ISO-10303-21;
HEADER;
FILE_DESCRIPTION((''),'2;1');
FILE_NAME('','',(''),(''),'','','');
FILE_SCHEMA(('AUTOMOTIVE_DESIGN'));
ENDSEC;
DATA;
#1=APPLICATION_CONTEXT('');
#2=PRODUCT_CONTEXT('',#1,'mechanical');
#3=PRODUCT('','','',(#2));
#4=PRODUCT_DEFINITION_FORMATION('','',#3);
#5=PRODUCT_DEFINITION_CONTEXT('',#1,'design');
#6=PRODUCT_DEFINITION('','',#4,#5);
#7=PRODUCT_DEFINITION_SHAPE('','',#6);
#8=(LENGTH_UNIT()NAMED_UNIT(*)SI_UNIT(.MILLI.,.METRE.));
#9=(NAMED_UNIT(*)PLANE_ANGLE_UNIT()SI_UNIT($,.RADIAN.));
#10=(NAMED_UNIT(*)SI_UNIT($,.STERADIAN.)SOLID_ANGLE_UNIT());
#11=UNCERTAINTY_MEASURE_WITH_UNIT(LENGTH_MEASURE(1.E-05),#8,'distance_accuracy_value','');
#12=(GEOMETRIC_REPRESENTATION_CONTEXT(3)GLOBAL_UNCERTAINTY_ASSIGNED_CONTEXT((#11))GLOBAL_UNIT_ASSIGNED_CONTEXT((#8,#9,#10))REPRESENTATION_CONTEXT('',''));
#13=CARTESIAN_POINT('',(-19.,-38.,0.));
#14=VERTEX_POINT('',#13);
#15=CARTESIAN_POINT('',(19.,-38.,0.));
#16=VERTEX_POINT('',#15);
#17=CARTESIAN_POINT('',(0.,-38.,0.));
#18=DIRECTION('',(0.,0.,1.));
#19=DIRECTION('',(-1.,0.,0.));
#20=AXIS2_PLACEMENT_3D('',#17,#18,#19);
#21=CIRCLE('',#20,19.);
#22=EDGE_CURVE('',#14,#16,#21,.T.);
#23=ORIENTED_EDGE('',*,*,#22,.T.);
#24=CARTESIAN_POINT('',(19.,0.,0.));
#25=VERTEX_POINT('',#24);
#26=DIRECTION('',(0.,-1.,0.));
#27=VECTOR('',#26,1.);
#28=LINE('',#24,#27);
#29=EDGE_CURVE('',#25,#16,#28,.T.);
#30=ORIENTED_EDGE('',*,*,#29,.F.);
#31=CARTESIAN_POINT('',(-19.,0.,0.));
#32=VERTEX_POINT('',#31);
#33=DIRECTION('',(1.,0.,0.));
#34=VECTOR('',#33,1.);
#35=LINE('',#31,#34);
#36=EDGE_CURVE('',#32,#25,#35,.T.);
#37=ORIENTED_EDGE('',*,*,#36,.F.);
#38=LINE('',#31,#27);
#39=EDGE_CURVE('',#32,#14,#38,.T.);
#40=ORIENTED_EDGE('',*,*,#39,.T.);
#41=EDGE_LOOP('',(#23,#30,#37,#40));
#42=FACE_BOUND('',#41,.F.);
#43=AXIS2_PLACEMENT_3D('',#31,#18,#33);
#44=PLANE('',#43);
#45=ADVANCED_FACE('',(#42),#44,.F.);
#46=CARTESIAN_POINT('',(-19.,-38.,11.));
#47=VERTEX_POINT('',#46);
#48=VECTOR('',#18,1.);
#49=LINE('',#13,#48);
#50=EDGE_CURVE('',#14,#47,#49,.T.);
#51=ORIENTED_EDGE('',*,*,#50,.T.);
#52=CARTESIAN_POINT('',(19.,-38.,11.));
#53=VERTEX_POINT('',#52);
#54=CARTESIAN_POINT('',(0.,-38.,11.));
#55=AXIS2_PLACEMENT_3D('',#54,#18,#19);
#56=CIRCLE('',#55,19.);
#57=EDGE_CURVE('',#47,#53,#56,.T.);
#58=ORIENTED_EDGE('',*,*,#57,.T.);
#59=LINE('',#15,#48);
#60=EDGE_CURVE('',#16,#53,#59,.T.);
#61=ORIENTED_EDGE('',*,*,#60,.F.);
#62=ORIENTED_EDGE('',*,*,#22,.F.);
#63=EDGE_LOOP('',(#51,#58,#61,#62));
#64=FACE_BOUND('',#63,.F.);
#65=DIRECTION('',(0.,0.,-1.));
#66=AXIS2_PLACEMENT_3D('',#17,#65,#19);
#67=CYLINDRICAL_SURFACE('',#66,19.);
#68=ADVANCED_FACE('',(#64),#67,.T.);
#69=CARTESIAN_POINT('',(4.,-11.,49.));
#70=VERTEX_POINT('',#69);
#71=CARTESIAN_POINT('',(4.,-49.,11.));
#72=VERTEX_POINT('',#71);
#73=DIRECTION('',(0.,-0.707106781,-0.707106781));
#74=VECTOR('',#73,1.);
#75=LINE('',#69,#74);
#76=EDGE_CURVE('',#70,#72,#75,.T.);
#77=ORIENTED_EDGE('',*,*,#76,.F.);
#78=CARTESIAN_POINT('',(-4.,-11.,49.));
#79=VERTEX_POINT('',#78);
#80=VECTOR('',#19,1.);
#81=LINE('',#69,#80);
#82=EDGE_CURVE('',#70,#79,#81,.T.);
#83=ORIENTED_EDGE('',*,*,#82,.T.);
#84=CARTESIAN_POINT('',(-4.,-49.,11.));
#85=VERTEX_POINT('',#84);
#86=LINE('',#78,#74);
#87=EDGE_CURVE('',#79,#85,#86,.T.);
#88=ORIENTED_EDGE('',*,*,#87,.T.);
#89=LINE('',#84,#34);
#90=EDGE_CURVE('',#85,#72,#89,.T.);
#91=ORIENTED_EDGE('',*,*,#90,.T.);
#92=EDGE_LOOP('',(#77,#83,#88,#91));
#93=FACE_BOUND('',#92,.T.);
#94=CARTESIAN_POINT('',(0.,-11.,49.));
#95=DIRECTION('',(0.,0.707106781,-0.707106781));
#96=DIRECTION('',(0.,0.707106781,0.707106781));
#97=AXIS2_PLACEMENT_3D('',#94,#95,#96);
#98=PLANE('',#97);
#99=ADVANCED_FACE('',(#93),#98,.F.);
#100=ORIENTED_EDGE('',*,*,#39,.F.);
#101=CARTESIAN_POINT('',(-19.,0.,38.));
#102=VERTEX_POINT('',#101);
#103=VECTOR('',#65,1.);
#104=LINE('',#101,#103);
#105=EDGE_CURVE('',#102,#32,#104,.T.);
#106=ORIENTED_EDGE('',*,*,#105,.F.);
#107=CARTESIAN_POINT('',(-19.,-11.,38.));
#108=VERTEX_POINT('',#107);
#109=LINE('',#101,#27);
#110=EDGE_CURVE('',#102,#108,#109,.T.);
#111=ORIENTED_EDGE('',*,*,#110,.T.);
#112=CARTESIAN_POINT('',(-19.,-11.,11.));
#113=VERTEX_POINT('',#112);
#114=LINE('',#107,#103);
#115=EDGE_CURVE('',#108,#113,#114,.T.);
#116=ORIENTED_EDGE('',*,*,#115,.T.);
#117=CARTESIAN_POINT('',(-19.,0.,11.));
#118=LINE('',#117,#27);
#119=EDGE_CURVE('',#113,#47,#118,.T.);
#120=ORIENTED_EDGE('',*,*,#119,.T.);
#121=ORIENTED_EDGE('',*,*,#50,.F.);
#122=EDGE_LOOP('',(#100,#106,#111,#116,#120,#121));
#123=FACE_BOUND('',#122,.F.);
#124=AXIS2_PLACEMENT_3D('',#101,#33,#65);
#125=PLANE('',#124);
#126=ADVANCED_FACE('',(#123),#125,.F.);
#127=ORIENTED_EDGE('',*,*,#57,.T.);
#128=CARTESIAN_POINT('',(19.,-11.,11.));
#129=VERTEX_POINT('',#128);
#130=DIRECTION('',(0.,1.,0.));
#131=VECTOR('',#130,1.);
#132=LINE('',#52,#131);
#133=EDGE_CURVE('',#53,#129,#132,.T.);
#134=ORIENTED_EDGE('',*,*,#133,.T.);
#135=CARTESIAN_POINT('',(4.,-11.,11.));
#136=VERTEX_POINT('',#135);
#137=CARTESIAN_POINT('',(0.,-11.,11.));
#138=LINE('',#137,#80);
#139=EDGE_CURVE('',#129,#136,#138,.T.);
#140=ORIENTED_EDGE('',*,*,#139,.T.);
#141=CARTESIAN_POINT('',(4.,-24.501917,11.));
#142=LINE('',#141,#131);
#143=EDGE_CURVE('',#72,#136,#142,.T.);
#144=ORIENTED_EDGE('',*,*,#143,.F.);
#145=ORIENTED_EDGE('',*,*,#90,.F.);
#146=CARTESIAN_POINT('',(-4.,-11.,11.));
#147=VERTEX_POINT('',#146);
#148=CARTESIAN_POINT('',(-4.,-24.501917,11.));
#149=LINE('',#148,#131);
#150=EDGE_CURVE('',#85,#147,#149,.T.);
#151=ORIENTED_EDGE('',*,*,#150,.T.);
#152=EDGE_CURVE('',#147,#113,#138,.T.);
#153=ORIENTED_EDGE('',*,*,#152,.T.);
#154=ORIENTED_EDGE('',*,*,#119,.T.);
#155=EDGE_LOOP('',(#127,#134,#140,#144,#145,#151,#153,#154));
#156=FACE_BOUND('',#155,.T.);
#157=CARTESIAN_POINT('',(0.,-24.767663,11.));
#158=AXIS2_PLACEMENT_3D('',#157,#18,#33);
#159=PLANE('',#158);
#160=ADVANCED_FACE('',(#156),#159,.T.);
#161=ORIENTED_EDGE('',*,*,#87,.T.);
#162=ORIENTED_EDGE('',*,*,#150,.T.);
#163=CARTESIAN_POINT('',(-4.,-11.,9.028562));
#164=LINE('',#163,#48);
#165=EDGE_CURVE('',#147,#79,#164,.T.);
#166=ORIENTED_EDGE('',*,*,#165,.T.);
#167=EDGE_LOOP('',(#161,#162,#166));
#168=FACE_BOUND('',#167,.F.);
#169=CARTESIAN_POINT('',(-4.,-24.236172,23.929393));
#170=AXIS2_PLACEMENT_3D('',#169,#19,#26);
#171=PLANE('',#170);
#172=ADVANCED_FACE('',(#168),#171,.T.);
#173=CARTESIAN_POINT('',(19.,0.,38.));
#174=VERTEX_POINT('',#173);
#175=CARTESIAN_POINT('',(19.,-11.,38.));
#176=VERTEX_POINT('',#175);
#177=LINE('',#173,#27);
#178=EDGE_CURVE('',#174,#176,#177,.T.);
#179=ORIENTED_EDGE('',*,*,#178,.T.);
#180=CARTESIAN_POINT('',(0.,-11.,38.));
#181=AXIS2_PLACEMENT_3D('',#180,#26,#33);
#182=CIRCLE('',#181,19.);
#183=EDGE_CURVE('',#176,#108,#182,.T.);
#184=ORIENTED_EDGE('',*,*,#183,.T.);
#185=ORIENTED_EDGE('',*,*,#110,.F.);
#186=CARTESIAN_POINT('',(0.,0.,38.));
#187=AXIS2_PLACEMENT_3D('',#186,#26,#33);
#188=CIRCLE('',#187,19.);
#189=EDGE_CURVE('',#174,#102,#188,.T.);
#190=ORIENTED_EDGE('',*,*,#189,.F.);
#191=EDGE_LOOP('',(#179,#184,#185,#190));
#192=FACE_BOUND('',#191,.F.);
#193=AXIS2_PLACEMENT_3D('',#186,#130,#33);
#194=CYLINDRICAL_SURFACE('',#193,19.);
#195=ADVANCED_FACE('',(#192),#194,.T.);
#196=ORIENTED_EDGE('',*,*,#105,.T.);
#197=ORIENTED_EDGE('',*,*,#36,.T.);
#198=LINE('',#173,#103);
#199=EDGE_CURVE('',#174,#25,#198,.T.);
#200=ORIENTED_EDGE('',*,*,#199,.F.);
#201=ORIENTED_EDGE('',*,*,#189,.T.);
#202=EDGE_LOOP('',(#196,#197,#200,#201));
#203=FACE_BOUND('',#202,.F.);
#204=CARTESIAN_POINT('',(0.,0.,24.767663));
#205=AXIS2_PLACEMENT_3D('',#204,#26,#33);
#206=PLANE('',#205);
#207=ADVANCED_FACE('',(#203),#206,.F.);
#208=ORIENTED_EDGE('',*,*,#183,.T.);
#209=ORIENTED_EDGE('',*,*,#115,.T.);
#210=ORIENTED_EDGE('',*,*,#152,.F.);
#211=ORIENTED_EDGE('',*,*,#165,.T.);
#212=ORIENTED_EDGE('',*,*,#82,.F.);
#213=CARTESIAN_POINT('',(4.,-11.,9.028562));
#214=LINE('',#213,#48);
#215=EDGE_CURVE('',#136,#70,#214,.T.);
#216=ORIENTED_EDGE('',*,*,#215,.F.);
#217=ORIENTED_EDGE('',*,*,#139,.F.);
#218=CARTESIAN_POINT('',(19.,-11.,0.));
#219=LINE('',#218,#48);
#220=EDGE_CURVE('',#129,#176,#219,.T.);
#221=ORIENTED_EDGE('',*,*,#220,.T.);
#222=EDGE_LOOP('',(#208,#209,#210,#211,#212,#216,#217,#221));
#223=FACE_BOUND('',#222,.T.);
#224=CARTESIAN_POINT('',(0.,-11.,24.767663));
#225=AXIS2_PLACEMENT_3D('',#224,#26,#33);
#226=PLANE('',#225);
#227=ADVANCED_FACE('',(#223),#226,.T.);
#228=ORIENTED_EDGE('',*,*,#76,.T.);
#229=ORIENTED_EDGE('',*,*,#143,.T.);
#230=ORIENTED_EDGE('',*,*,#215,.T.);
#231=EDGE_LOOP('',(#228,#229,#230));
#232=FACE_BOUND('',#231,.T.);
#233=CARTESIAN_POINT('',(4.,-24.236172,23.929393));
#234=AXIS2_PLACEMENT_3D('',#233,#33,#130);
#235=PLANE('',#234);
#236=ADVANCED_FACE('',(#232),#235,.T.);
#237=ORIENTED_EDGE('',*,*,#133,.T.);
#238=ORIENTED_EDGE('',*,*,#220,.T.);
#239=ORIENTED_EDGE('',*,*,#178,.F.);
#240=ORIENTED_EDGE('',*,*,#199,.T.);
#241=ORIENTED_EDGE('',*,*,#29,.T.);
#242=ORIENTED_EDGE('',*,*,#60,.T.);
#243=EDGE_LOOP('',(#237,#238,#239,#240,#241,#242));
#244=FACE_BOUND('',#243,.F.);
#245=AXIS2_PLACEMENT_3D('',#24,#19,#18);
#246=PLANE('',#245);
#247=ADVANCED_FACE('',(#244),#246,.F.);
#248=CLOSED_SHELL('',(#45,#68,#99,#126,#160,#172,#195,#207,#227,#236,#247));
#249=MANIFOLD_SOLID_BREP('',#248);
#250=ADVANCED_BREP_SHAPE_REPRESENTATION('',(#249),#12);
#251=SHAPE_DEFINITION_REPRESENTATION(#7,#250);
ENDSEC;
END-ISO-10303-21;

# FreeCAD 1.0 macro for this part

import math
import FreeCAD as App
import Part
import Sketcher

V = App.Vector
Q = App.Units.Quantity


def add_polygon(sketch, points):
    """Adds a closed chain of lines whose ends are joined by coincident constraints."""
    first, n = sketch.GeometryCount, len(points)
    for a, b in zip(points, points[1:] + points[:1]):
        sketch.addGeometry(Part.LineSegment(App.Vector(*a, 0), App.Vector(*b, 0)), False)
    for i in range(n):
        sketch.addConstraint(Sketcher.Constraint("Coincident", first + i, 2, first + (i + 1) % n, 1))

doc = App.newDocument("Part")
body = doc.addObject("PartDesign::Body", "Body")

sketch1 = doc.addObject("Sketcher::SketchObject", "Sketch")
body.addObject(sketch1)
sketch1.AttachmentSupport = (doc.XZ_Plane, [""])
sketch1.MapMode = "FlatFace"
sketch1.addGeometry([
    Part.LineSegment(V(-19, 38, 0), V(-19, 0, 0)),
    Part.LineSegment(V(-19, 0, 0), V(19, 0, 0)),
    Part.LineSegment(V(19, 0, 0), V(19, 38, 0)),
    Part.ArcOfCircle(Part.Circle(V(0, 38, 0), V(0, 0, 1), 19), math.radians(0), math.radians(180)),
], False)
sketch1.addConstraint([
    Sketcher.Constraint("Coincident", 0, 2, 1, 1),
    Sketcher.Constraint("Coincident", 1, 2, 2, 1),
    Sketcher.Constraint("Tangent", 2, 2, 3, 1),
    Sketcher.Constraint("Tangent", 3, 2, 0, 1),
    Sketcher.Constraint("Vertical", 0),
    Sketcher.Constraint("Horizontal", 1),
    Sketcher.Constraint("Vertical", 2),
    Sketcher.Constraint("Symmetric", 0, 2, 1, 2, -1, 1),
    Sketcher.Constraint("Equal", 1, 0),
    Sketcher.Constraint("Radius", 3, Q("19 mm")),
])
pad1 = doc.addObject("PartDesign::Pad", "Pad")
body.addObject(pad1)
pad1.Profile = sketch1
pad1.Length = 11

sketch2 = doc.addObject("Sketcher::SketchObject", "Sketch001")
body.addObject(sketch2)
sketch2.AttachmentSupport = (doc.XY_Plane, [""])
sketch2.MapMode = "FlatFace"
sketch2.addGeometry([
    Part.LineSegment(V(19, 0, 0), V(-19, 0, 0)),
    Part.LineSegment(V(-19, 0, 0), V(-19, -38, 0)),
    Part.ArcOfCircle(Part.Circle(V(0, -38, 0), V(0, 0, 1), 19), math.radians(180), math.radians(360)),
    Part.LineSegment(V(19, -38, 0), V(19, 0, 0)),
], False)
sketch2.addConstraint([
    Sketcher.Constraint("Coincident", 0, 2, 1, 1),
    Sketcher.Constraint("Tangent", 1, 2, 2, 1),
    Sketcher.Constraint("Tangent", 2, 2, 3, 1),
    Sketcher.Constraint("Coincident", 3, 2, 0, 1),
    Sketcher.Constraint("Horizontal", 0),
    Sketcher.Constraint("Vertical", 1),
    Sketcher.Constraint("Vertical", 3),
    Sketcher.Constraint("Symmetric", 0, 2, 3, 2, -1, 1),
    Sketcher.Constraint("Equal", 0, 1),
    Sketcher.Constraint("Radius", 2, Q("19 mm")),
])
pad2 = doc.addObject("PartDesign::Pad", "Pad001")
body.addObject(pad2)
pad2.Profile = sketch2
pad2.Length = 11

sketch3 = doc.addObject("Sketcher::SketchObject", "Sketch002")
body.addObject(sketch3)
sketch3.AttachmentSupport = (doc.YZ_Plane, [""])
sketch3.MapMode = "FlatFace"
add_polygon(sketch3, [(-11, 49), (-49, 11), (-11, 9.028562)])
sketch3.addConstraint([
    Sketcher.Constraint("Vertical", 2),
    Sketcher.Constraint("Angle", 0, Q("-135 deg")),
    Sketcher.Constraint("DistanceX", 0, 2, -1, 1, Q("49 mm")),
    Sketcher.Constraint("DistanceY", -1, 1, 0, 2, Q("11 mm")),
    Sketcher.Constraint("DistanceX", 1, 2, -1, 1, Q("11 mm")),
    Sketcher.Constraint("DistanceY", 2, 1, 2, 2, Q("39.971438 mm")),
])
pad3 = doc.addObject("PartDesign::Pad", "Pad002")
body.addObject(pad3)
pad3.Profile = sketch3
pad3.Length = 4
body2 = doc.addObject("PartDesign::Body", "Body001")
doc.recompute()

body2.BaseFeature = body
doc.recompute()

mirroring = doc.addObject("Part::Mirroring", "Mirroring")
mirroring.Source = body
mirroring.Base = V(0, 0, 0)
mirroring.Normal = V(1, 0, 0)
body3 = doc.addObject("PartDesign::Body", "Body002")
body3.BaseFeature = mirroring
boolean = doc.addObject("PartDesign::Boolean", "Boolean")
body2.addObject(boolean)
boolean.Type = "Fuse"
boolean.addObjects([body3])
doc.recompute()
mirroring.Visibility = False

doc.recompute()
